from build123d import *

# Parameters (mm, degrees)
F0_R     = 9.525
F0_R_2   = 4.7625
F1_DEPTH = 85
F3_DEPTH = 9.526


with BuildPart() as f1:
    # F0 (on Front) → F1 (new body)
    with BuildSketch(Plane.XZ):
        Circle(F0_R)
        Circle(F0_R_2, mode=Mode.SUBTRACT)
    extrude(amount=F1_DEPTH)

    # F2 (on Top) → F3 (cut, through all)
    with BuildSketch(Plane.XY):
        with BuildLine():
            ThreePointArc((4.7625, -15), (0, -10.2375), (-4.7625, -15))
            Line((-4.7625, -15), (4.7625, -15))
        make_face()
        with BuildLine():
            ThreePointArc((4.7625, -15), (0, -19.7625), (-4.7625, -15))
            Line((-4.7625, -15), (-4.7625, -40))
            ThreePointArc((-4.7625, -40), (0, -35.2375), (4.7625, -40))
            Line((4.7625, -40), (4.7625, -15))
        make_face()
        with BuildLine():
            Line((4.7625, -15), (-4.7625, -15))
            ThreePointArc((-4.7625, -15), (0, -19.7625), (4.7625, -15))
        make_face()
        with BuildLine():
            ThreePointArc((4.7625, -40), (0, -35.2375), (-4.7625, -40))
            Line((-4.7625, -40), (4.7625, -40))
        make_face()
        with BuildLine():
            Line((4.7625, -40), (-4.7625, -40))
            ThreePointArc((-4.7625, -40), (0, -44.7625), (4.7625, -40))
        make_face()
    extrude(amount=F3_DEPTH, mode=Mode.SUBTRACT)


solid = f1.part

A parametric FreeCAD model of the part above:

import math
import FreeCAD as App
import Part
import Sketcher
from FreeCAD import Vector
Q = App.Units.Quantity

doc = App.newDocument("Part")
body = doc.addObject("PartDesign::Body", "Body")

sketch1 = doc.addObject("Sketcher::SketchObject", "Sketch")
body.addObject(sketch1)
sketch1.AttachmentSupport = (doc.XZ_Plane, [""])
sketch1.MapMode = "FlatFace"
sketch1.addGeometry([
    Part.Circle(Vector(0, 0, 0), Vector(0, 0, 1), 9.5),
    Part.Circle(Vector(0, 0, 0), Vector(0, 0, 1), 4.8),
], False)
sketch1.addConstraint([
    Sketcher.Constraint("Coincident", 0, 3, -1, 1),
    Sketcher.Constraint("Coincident", 1, 3, -1, 1),
    Sketcher.Constraint("Diameter", 0, Q("19.05 mm")),
    Sketcher.Constraint("Diameter", 1, Q("9.525 mm")),
])
pad1 = doc.addObject("PartDesign::Pad", "Pad")
body.addObject(pad1)
pad1.Profile = sketch1
pad1.Length = 85

sketch2 = doc.addObject("Sketcher::SketchObject", "Sketch001")
body.addObject(sketch2)
sketch2.AttachmentSupport = (doc.XY_Plane, [""])
sketch2.MapMode = "FlatFace"
sketch2.addGeometry([
    Part.ArcOfCircle(Part.Circle(Vector(0, -15, 0), Vector(0, 0, 1), 4.8), math.radians(0), math.radians(180)),
    Part.LineSegment(Vector(-4.8, -15, 0), Vector(-4.8, -40, 0)),
    Part.ArcOfCircle(Part.Circle(Vector(0, -40, 0), Vector(0, 0, 1), 4.8), math.radians(180), math.radians(360)),
    Part.LineSegment(Vector(4.8, -40, 0), Vector(4.8, -15, 0)),
], False)
sketch2.addConstraint([
    Sketcher.Constraint("Tangent", 0, 2, 1, 1),
    Sketcher.Constraint("Tangent", 1, 2, 2, 1),
    Sketcher.Constraint("Tangent", 2, 2, 3, 1),
    Sketcher.Constraint("Tangent", 3, 2, 0, 1),
    Sketcher.Constraint("Vertical", 1),
    Sketcher.Constraint("Vertical", 3),
    Sketcher.Constraint("PointOnObject", 0, 3, -2),
    Sketcher.Constraint("DistanceY", 1, 2, 1, 1, Q("25 mm")),
    Sketcher.Constraint("DistanceY", 0, 3, -1, 1, Q("15 mm")),
    Sketcher.Constraint("Radius", 0, Q("4.7625 mm")),
])
pocket1 = doc.addObject("PartDesign::Pocket", "Pocket")
body.addObject(pocket1)
pocket1.Profile = sketch2
pocket1.Type = "ThroughAll"
pocket1.Reversed = True

doc.recompute()
